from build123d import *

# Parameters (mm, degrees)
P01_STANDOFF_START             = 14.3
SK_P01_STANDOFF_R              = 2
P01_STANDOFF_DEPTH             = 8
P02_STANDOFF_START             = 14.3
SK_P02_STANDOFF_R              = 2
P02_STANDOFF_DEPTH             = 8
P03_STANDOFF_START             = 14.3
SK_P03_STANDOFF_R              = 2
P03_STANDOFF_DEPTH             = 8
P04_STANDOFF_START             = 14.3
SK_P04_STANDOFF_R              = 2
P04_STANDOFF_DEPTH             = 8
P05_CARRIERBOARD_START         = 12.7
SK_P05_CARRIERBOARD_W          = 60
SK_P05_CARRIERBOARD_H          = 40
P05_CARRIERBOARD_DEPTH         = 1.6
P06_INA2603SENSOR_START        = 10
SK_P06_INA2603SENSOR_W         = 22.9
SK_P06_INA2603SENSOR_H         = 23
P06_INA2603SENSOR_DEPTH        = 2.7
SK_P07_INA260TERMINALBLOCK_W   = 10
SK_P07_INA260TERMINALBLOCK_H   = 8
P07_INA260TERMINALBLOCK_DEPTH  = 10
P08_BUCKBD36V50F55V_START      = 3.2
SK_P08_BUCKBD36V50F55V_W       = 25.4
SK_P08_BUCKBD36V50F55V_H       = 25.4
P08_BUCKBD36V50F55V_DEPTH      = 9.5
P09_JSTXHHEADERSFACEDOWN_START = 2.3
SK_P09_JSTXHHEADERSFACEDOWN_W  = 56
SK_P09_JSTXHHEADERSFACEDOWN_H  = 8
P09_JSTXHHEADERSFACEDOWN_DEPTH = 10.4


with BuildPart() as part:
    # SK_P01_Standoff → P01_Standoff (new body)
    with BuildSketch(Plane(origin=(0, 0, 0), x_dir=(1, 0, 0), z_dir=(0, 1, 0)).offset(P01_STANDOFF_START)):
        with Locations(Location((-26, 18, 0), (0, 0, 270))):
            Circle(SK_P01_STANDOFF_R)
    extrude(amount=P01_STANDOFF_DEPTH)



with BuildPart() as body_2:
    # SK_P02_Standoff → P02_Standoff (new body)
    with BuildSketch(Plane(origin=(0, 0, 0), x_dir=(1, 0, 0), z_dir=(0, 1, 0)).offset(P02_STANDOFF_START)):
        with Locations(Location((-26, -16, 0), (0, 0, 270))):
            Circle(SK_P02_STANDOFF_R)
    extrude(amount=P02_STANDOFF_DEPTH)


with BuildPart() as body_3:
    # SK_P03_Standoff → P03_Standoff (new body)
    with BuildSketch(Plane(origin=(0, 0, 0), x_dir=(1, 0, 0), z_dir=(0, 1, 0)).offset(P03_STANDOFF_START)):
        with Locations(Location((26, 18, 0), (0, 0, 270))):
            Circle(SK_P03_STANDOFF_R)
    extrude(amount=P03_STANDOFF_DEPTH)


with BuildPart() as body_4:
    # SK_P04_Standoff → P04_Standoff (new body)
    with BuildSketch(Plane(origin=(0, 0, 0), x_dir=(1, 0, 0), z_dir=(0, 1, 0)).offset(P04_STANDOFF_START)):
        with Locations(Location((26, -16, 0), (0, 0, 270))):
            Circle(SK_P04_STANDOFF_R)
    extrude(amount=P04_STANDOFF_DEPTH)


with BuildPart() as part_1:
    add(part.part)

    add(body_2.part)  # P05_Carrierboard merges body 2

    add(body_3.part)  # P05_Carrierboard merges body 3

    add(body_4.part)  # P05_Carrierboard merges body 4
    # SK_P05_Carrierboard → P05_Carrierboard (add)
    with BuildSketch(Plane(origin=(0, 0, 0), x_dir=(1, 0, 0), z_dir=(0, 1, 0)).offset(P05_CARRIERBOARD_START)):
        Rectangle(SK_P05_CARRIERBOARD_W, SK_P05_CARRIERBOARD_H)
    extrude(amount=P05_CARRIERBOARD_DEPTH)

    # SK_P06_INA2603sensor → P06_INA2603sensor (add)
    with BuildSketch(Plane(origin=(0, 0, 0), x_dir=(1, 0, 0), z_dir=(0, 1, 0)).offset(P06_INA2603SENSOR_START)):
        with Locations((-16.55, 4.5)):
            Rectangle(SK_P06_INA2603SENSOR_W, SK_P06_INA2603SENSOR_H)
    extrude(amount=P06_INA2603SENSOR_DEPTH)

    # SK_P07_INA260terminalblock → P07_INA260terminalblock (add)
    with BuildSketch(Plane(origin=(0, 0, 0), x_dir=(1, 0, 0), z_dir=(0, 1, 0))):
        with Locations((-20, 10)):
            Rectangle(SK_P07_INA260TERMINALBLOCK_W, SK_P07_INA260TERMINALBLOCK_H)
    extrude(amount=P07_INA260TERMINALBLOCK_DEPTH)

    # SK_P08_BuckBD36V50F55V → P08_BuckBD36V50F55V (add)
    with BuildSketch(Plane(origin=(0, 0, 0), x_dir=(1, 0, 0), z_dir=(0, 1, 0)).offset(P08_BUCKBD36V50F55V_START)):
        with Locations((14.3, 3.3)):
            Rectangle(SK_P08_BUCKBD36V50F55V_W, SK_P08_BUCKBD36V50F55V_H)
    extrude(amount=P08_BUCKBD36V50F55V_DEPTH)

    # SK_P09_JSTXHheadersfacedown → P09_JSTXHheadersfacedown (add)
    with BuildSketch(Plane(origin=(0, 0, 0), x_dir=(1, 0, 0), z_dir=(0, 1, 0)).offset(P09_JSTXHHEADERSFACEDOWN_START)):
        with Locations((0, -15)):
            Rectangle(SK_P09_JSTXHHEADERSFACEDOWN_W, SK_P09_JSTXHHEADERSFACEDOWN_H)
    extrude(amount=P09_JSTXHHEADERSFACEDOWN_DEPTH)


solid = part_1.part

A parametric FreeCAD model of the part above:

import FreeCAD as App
import Part
import Sketcher

V = App.Vector

doc = App.newDocument("Part")
body = doc.addObject("PartDesign::Body", "Body")

# Sketch on XZ plane
sketch1 = doc.addObject("Sketcher::SketchObject", "Sketch")
body.addObject(sketch1)
sketch1.AttachmentSupport = (doc.XZ_Plane, [""])
sketch1.MapMode = "FlatFace"
sketch1.AttachmentOffset = App.Placement(V(0, 0, -14.3), App.Rotation())
sketch1.addGeometry(Part.Circle(V(-26, -18, 0), V(0, 0, 1), 2), False)
sketch1.addConstraint([
    Sketcher.Constraint("Diameter", 0, 4.0),
    Sketcher.Constraint("DistanceX", 0, 3, -1, 1, 26.0),
    Sketcher.Constraint("DistanceY", 0, 3, -1, 1, 18.0),
])
pad1 = doc.addObject("PartDesign::Pad", "Pad")
body.addObject(pad1)
pad1.Profile = sketch1
pad1.Length = 8
pad1.Reversed = True
body2 = doc.addObject("PartDesign::Body", "Body001")

# Sketch on XZ plane
sketch2 = doc.addObject("Sketcher::SketchObject", "Sketch001")
body2.addObject(sketch2)
sketch2.AttachmentSupport = (doc.getObject("XZ_Plane001"), [""])
sketch2.MapMode = "FlatFace"
sketch2.AttachmentOffset = App.Placement(V(0, 0, -14.3), App.Rotation())
sketch2.addGeometry(Part.Circle(V(-26, 16, 0), V(0, 0, 1), 2), False)
sketch2.addConstraint([
    Sketcher.Constraint("Diameter", 0, 4.0),
    Sketcher.Constraint("DistanceX", 0, 3, -1, 1, 26.0),
    Sketcher.Constraint("DistanceY", -1, 1, 0, 3, 16.0),
])
pad2 = doc.addObject("PartDesign::Pad", "Pad001")
body2.addObject(pad2)
pad2.Profile = sketch2
pad2.Length = 8
pad2.Reversed = True
body3 = doc.addObject("PartDesign::Body", "Body002")

# Sketch on XZ plane
sketch3 = doc.addObject("Sketcher::SketchObject", "Sketch002")
body3.addObject(sketch3)
sketch3.AttachmentSupport = (doc.getObject("XZ_Plane002"), [""])
sketch3.MapMode = "FlatFace"
sketch3.AttachmentOffset = App.Placement(V(0, 0, -14.3), App.Rotation())
sketch3.addGeometry(Part.Circle(V(26, -18, 0), V(0, 0, 1), 2), False)
sketch3.addConstraint([
    Sketcher.Constraint("Diameter", 0, 4.0),
    Sketcher.Constraint("DistanceX", -1, 1, 0, 3, 26.0),
    Sketcher.Constraint("DistanceY", 0, 3, -1, 1, 18.0),
])
pad3 = doc.addObject("PartDesign::Pad", "Pad002")
body3.addObject(pad3)
pad3.Profile = sketch3
pad3.Length = 8
pad3.Reversed = True
body4 = doc.addObject("PartDesign::Body", "Body003")

# Sketch on XZ plane
sketch4 = doc.addObject("Sketcher::SketchObject", "Sketch003")
body4.addObject(sketch4)
sketch4.AttachmentSupport = (doc.getObject("XZ_Plane003"), [""])
sketch4.MapMode = "FlatFace"
sketch4.AttachmentOffset = App.Placement(V(0, 0, -14.3), App.Rotation())
sketch4.addGeometry(Part.Circle(V(26, 16, 0), V(0, 0, 1), 2), False)
sketch4.addConstraint([
    Sketcher.Constraint("Diameter", 0, 4.0),
    Sketcher.Constraint("DistanceX", -1, 1, 0, 3, 26.0),
    Sketcher.Constraint("DistanceY", -1, 1, 0, 3, 16.0),
])
pad4 = doc.addObject("PartDesign::Pad", "Pad003")
body4.addObject(pad4)
pad4.Profile = sketch4
pad4.Length = 8
pad4.Reversed = True
body.AllowCompound = True
doc.recompute()

boolean = doc.addObject("PartDesign::Boolean", "Boolean")
body.addObject(boolean)
boolean.Type = "Fuse"
boolean.addObjects([body2])
doc.recompute()

boolean2 = doc.addObject("PartDesign::Boolean", "Boolean001")
body.addObject(boolean2)
boolean2.Type = "Fuse"
boolean2.addObjects([body3])
doc.recompute()

boolean3 = doc.addObject("PartDesign::Boolean", "Boolean002")
body.addObject(boolean3)
boolean3.Type = "Fuse"
boolean3.addObjects([body4])

# Sketch on XZ plane
sketch5 = doc.addObject("Sketcher::SketchObject", "Sketch004")
body.addObject(sketch5)
sketch5.AttachmentSupport = (doc.XZ_Plane, [""])
sketch5.MapMode = "FlatFace"
sketch5.AttachmentOffset = App.Placement(V(0, 0, -12.7), App.Rotation())
sketch5.addGeometry([
    Part.LineSegment(V(-30, -20, 0), V(-30, 20, 0)),
    Part.LineSegment(V(-30, 20, 0), V(30, 20, 0)),
    Part.LineSegment(V(30, 20, 0), V(30, -20, 0)),
    Part.LineSegment(V(30, -20, 0), V(-30, -20, 0)),
], False)
sketch5.addConstraint([
    Sketcher.Constraint("Coincident", 0, 2, 1, 1),
    Sketcher.Constraint("Coincident", 1, 2, 2, 1),
    Sketcher.Constraint("Coincident", 2, 2, 3, 1),
    Sketcher.Constraint("Coincident", 3, 2, 0, 1),
    Sketcher.Constraint("Vertical", 0),
    Sketcher.Constraint("Horizontal", 1),
    Sketcher.Constraint("Vertical", 2),
    Sketcher.Constraint("Horizontal", 3),
    Sketcher.Constraint("Symmetric", 0, 2, 2, 2, -1, 1),
    Sketcher.Constraint("DistanceX", 1, 1, 1, 2, 60.0),
    Sketcher.Constraint("DistanceY", 0, 1, 0, 2, 40.0),
])
pad5 = doc.addObject("PartDesign::Pad", "Pad004")
body.addObject(pad5)
pad5.Profile = sketch5
pad5.Length = 1.6
pad5.Reversed = True

# Sketch on XZ plane
sketch6 = doc.addObject("Sketcher::SketchObject", "Sketch005")
body.addObject(sketch6)
sketch6.AttachmentSupport = (doc.XZ_Plane, [""])
sketch6.MapMode = "FlatFace"
sketch6.AttachmentOffset = App.Placement(V(0, 0, -10), App.Rotation())
sketch6.addGeometry([
    Part.LineSegment(V(-28, -16, 0), V(-28, 7, 0)),
    Part.LineSegment(V(-28, 7, 0), V(-5, 7, 0)),
    Part.LineSegment(V(-5, 7, 0), V(-5, -16, 0)),
    Part.LineSegment(V(-5, -16, 0), V(-28, -16, 0)),
], False)
sketch6.addConstraint([
    Sketcher.Constraint("Coincident", 0, 2, 1, 1),
    Sketcher.Constraint("Coincident", 1, 2, 2, 1),
    Sketcher.Constraint("Coincident", 2, 2, 3, 1),
    Sketcher.Constraint("Coincident", 3, 2, 0, 1),
    Sketcher.Constraint("Vertical", 0),
    Sketcher.Constraint("Horizontal", 1),
    Sketcher.Constraint("Vertical", 2),
    Sketcher.Constraint("Horizontal", 3),
    Sketcher.Constraint("DistanceY", 0, 1, 0, 2, 23.0),
    Sketcher.Constraint("DistanceX", 1, 1, 1, 2, 22.9),
    Sketcher.Constraint("DistanceX", 0, 2, -1, 1, 28.0),
    Sketcher.Constraint("DistanceY", -1, 1, 0, 2, 7.0),
])
pad6 = doc.addObject("PartDesign::Pad", "Pad005")
body.addObject(pad6)
pad6.Profile = sketch6
pad6.Length = 2.7
pad6.Reversed = True

# Sketch on XZ plane
sketch7 = doc.addObject("Sketcher::SketchObject", "Sketch006")
body.addObject(sketch7)
sketch7.AttachmentSupport = (doc.XZ_Plane, [""])
sketch7.MapMode = "FlatFace"
sketch7.addGeometry([
    Part.LineSegment(V(-25, -14, 0), V(-25, -6, 0)),
    Part.LineSegment(V(-25, -6, 0), V(-15, -6, 0)),
    Part.LineSegment(V(-15, -6, 0), V(-15, -14, 0)),
    Part.LineSegment(V(-15, -14, 0), V(-25, -14, 0)),
], False)
sketch7.addConstraint([
    Sketcher.Constraint("Coincident", 0, 2, 1, 1),
    Sketcher.Constraint("Coincident", 1, 2, 2, 1),
    Sketcher.Constraint("Coincident", 2, 2, 3, 1),
    Sketcher.Constraint("Coincident", 3, 2, 0, 1),
    Sketcher.Constraint("Vertical", 0),
    Sketcher.Constraint("Horizontal", 1),
    Sketcher.Constraint("Vertical", 2),
    Sketcher.Constraint("Horizontal", 3),
    Sketcher.Constraint("DistanceX", 1, 1, 1, 2, 10.0),
    Sketcher.Constraint("DistanceY", 0, 1, 0, 2, 8.0),
    Sketcher.Constraint("DistanceX", 0, 2, -1, 1, 25.0),
    Sketcher.Constraint("DistanceY", 0, 2, -1, 1, 6.0),
])
pad7 = doc.addObject("PartDesign::Pad", "Pad006")
body.addObject(pad7)
pad7.Profile = sketch7
pad7.Length = 10
pad7.Reversed = True

# Sketch on XZ plane
sketch8 = doc.addObject("Sketcher::SketchObject", "Sketch007")
body.addObject(sketch8)
sketch8.AttachmentSupport = (doc.XZ_Plane, [""])
sketch8.MapMode = "FlatFace"
sketch8.AttachmentOffset = App.Placement(V(0, 0, -3.2), App.Rotation())
sketch8.addGeometry([
    Part.LineSegment(V(2, -16, 0), V(2, 9, 0)),
    Part.LineSegment(V(2, 9, 0), V(27, 9, 0)),
    Part.LineSegment(V(27, 9, 0), V(27, -16, 0)),
    Part.LineSegment(V(27, -16, 0), V(2, -16, 0)),
], False)
sketch8.addConstraint([
    Sketcher.Constraint("Coincident", 0, 2, 1, 1),
    Sketcher.Constraint("Coincident", 1, 2, 2, 1),
    Sketcher.Constraint("Coincident", 2, 2, 3, 1),
    Sketcher.Constraint("Coincident", 3, 2, 0, 1),
    Sketcher.Constraint("Vertical", 0),
    Sketcher.Constraint("Horizontal", 1),
    Sketcher.Constraint("Vertical", 2),
    Sketcher.Constraint("Horizontal", 3),
    Sketcher.Constraint("Equal", 3, 0),
    Sketcher.Constraint("DistanceX", 1, 1, 1, 2, 25.4),
    Sketcher.Constraint("DistanceX", -1, 1, 1, 2, 27.0),
    Sketcher.Constraint("DistanceY", 2, 2, -1, 1, 16.0),
])
pad8 = doc.addObject("PartDesign::Pad", "Pad007")
body.addObject(pad8)
pad8.Profile = sketch8
pad8.Length = 9.5
pad8.Reversed = True

# Sketch on XZ plane
sketch9 = doc.addObject("Sketcher::SketchObject", "Sketch008")
body.addObject(sketch9)
sketch9.AttachmentSupport = (doc.XZ_Plane, [""])
sketch9.MapMode = "FlatFace"
sketch9.AttachmentOffset = App.Placement(V(0, 0, -2.3), App.Rotation())
sketch9.addGeometry([
    Part.LineSegment(V(-28, 11, 0), V(-28, 19, 0)),
    Part.LineSegment(V(-28, 19, 0), V(28, 19, 0)),
    Part.LineSegment(V(28, 19, 0), V(28, 11, 0)),
    Part.LineSegment(V(28, 11, 0), V(-28, 11, 0)),
], False)
sketch9.addConstraint([
    Sketcher.Constraint("Coincident", 0, 2, 1, 1),
    Sketcher.Constraint("Coincident", 1, 2, 2, 1),
    Sketcher.Constraint("Coincident", 2, 2, 3, 1),
    Sketcher.Constraint("Coincident", 3, 2, 0, 1),
    Sketcher.Constraint("Vertical", 0),
    Sketcher.Constraint("Horizontal", 1),
    Sketcher.Constraint("Vertical", 2),
    Sketcher.Constraint("Horizontal", 3),
    Sketcher.Constraint("DistanceX", 1, 1, 1, 2, 56.0),
    Sketcher.Constraint("DistanceY", 0, 1, 0, 2, 8.0),
    Sketcher.Constraint("DistanceX", 0, 2, -1, 1, 28.0),
    Sketcher.Constraint("DistanceY", -1, 1, 0, 2, 19.0),
])
pad9 = doc.addObject("PartDesign::Pad", "Pad008")
body.addObject(pad9)
pad9.Profile = sketch9
pad9.Length = 10.4
pad9.Reversed = True

doc.recompute()
